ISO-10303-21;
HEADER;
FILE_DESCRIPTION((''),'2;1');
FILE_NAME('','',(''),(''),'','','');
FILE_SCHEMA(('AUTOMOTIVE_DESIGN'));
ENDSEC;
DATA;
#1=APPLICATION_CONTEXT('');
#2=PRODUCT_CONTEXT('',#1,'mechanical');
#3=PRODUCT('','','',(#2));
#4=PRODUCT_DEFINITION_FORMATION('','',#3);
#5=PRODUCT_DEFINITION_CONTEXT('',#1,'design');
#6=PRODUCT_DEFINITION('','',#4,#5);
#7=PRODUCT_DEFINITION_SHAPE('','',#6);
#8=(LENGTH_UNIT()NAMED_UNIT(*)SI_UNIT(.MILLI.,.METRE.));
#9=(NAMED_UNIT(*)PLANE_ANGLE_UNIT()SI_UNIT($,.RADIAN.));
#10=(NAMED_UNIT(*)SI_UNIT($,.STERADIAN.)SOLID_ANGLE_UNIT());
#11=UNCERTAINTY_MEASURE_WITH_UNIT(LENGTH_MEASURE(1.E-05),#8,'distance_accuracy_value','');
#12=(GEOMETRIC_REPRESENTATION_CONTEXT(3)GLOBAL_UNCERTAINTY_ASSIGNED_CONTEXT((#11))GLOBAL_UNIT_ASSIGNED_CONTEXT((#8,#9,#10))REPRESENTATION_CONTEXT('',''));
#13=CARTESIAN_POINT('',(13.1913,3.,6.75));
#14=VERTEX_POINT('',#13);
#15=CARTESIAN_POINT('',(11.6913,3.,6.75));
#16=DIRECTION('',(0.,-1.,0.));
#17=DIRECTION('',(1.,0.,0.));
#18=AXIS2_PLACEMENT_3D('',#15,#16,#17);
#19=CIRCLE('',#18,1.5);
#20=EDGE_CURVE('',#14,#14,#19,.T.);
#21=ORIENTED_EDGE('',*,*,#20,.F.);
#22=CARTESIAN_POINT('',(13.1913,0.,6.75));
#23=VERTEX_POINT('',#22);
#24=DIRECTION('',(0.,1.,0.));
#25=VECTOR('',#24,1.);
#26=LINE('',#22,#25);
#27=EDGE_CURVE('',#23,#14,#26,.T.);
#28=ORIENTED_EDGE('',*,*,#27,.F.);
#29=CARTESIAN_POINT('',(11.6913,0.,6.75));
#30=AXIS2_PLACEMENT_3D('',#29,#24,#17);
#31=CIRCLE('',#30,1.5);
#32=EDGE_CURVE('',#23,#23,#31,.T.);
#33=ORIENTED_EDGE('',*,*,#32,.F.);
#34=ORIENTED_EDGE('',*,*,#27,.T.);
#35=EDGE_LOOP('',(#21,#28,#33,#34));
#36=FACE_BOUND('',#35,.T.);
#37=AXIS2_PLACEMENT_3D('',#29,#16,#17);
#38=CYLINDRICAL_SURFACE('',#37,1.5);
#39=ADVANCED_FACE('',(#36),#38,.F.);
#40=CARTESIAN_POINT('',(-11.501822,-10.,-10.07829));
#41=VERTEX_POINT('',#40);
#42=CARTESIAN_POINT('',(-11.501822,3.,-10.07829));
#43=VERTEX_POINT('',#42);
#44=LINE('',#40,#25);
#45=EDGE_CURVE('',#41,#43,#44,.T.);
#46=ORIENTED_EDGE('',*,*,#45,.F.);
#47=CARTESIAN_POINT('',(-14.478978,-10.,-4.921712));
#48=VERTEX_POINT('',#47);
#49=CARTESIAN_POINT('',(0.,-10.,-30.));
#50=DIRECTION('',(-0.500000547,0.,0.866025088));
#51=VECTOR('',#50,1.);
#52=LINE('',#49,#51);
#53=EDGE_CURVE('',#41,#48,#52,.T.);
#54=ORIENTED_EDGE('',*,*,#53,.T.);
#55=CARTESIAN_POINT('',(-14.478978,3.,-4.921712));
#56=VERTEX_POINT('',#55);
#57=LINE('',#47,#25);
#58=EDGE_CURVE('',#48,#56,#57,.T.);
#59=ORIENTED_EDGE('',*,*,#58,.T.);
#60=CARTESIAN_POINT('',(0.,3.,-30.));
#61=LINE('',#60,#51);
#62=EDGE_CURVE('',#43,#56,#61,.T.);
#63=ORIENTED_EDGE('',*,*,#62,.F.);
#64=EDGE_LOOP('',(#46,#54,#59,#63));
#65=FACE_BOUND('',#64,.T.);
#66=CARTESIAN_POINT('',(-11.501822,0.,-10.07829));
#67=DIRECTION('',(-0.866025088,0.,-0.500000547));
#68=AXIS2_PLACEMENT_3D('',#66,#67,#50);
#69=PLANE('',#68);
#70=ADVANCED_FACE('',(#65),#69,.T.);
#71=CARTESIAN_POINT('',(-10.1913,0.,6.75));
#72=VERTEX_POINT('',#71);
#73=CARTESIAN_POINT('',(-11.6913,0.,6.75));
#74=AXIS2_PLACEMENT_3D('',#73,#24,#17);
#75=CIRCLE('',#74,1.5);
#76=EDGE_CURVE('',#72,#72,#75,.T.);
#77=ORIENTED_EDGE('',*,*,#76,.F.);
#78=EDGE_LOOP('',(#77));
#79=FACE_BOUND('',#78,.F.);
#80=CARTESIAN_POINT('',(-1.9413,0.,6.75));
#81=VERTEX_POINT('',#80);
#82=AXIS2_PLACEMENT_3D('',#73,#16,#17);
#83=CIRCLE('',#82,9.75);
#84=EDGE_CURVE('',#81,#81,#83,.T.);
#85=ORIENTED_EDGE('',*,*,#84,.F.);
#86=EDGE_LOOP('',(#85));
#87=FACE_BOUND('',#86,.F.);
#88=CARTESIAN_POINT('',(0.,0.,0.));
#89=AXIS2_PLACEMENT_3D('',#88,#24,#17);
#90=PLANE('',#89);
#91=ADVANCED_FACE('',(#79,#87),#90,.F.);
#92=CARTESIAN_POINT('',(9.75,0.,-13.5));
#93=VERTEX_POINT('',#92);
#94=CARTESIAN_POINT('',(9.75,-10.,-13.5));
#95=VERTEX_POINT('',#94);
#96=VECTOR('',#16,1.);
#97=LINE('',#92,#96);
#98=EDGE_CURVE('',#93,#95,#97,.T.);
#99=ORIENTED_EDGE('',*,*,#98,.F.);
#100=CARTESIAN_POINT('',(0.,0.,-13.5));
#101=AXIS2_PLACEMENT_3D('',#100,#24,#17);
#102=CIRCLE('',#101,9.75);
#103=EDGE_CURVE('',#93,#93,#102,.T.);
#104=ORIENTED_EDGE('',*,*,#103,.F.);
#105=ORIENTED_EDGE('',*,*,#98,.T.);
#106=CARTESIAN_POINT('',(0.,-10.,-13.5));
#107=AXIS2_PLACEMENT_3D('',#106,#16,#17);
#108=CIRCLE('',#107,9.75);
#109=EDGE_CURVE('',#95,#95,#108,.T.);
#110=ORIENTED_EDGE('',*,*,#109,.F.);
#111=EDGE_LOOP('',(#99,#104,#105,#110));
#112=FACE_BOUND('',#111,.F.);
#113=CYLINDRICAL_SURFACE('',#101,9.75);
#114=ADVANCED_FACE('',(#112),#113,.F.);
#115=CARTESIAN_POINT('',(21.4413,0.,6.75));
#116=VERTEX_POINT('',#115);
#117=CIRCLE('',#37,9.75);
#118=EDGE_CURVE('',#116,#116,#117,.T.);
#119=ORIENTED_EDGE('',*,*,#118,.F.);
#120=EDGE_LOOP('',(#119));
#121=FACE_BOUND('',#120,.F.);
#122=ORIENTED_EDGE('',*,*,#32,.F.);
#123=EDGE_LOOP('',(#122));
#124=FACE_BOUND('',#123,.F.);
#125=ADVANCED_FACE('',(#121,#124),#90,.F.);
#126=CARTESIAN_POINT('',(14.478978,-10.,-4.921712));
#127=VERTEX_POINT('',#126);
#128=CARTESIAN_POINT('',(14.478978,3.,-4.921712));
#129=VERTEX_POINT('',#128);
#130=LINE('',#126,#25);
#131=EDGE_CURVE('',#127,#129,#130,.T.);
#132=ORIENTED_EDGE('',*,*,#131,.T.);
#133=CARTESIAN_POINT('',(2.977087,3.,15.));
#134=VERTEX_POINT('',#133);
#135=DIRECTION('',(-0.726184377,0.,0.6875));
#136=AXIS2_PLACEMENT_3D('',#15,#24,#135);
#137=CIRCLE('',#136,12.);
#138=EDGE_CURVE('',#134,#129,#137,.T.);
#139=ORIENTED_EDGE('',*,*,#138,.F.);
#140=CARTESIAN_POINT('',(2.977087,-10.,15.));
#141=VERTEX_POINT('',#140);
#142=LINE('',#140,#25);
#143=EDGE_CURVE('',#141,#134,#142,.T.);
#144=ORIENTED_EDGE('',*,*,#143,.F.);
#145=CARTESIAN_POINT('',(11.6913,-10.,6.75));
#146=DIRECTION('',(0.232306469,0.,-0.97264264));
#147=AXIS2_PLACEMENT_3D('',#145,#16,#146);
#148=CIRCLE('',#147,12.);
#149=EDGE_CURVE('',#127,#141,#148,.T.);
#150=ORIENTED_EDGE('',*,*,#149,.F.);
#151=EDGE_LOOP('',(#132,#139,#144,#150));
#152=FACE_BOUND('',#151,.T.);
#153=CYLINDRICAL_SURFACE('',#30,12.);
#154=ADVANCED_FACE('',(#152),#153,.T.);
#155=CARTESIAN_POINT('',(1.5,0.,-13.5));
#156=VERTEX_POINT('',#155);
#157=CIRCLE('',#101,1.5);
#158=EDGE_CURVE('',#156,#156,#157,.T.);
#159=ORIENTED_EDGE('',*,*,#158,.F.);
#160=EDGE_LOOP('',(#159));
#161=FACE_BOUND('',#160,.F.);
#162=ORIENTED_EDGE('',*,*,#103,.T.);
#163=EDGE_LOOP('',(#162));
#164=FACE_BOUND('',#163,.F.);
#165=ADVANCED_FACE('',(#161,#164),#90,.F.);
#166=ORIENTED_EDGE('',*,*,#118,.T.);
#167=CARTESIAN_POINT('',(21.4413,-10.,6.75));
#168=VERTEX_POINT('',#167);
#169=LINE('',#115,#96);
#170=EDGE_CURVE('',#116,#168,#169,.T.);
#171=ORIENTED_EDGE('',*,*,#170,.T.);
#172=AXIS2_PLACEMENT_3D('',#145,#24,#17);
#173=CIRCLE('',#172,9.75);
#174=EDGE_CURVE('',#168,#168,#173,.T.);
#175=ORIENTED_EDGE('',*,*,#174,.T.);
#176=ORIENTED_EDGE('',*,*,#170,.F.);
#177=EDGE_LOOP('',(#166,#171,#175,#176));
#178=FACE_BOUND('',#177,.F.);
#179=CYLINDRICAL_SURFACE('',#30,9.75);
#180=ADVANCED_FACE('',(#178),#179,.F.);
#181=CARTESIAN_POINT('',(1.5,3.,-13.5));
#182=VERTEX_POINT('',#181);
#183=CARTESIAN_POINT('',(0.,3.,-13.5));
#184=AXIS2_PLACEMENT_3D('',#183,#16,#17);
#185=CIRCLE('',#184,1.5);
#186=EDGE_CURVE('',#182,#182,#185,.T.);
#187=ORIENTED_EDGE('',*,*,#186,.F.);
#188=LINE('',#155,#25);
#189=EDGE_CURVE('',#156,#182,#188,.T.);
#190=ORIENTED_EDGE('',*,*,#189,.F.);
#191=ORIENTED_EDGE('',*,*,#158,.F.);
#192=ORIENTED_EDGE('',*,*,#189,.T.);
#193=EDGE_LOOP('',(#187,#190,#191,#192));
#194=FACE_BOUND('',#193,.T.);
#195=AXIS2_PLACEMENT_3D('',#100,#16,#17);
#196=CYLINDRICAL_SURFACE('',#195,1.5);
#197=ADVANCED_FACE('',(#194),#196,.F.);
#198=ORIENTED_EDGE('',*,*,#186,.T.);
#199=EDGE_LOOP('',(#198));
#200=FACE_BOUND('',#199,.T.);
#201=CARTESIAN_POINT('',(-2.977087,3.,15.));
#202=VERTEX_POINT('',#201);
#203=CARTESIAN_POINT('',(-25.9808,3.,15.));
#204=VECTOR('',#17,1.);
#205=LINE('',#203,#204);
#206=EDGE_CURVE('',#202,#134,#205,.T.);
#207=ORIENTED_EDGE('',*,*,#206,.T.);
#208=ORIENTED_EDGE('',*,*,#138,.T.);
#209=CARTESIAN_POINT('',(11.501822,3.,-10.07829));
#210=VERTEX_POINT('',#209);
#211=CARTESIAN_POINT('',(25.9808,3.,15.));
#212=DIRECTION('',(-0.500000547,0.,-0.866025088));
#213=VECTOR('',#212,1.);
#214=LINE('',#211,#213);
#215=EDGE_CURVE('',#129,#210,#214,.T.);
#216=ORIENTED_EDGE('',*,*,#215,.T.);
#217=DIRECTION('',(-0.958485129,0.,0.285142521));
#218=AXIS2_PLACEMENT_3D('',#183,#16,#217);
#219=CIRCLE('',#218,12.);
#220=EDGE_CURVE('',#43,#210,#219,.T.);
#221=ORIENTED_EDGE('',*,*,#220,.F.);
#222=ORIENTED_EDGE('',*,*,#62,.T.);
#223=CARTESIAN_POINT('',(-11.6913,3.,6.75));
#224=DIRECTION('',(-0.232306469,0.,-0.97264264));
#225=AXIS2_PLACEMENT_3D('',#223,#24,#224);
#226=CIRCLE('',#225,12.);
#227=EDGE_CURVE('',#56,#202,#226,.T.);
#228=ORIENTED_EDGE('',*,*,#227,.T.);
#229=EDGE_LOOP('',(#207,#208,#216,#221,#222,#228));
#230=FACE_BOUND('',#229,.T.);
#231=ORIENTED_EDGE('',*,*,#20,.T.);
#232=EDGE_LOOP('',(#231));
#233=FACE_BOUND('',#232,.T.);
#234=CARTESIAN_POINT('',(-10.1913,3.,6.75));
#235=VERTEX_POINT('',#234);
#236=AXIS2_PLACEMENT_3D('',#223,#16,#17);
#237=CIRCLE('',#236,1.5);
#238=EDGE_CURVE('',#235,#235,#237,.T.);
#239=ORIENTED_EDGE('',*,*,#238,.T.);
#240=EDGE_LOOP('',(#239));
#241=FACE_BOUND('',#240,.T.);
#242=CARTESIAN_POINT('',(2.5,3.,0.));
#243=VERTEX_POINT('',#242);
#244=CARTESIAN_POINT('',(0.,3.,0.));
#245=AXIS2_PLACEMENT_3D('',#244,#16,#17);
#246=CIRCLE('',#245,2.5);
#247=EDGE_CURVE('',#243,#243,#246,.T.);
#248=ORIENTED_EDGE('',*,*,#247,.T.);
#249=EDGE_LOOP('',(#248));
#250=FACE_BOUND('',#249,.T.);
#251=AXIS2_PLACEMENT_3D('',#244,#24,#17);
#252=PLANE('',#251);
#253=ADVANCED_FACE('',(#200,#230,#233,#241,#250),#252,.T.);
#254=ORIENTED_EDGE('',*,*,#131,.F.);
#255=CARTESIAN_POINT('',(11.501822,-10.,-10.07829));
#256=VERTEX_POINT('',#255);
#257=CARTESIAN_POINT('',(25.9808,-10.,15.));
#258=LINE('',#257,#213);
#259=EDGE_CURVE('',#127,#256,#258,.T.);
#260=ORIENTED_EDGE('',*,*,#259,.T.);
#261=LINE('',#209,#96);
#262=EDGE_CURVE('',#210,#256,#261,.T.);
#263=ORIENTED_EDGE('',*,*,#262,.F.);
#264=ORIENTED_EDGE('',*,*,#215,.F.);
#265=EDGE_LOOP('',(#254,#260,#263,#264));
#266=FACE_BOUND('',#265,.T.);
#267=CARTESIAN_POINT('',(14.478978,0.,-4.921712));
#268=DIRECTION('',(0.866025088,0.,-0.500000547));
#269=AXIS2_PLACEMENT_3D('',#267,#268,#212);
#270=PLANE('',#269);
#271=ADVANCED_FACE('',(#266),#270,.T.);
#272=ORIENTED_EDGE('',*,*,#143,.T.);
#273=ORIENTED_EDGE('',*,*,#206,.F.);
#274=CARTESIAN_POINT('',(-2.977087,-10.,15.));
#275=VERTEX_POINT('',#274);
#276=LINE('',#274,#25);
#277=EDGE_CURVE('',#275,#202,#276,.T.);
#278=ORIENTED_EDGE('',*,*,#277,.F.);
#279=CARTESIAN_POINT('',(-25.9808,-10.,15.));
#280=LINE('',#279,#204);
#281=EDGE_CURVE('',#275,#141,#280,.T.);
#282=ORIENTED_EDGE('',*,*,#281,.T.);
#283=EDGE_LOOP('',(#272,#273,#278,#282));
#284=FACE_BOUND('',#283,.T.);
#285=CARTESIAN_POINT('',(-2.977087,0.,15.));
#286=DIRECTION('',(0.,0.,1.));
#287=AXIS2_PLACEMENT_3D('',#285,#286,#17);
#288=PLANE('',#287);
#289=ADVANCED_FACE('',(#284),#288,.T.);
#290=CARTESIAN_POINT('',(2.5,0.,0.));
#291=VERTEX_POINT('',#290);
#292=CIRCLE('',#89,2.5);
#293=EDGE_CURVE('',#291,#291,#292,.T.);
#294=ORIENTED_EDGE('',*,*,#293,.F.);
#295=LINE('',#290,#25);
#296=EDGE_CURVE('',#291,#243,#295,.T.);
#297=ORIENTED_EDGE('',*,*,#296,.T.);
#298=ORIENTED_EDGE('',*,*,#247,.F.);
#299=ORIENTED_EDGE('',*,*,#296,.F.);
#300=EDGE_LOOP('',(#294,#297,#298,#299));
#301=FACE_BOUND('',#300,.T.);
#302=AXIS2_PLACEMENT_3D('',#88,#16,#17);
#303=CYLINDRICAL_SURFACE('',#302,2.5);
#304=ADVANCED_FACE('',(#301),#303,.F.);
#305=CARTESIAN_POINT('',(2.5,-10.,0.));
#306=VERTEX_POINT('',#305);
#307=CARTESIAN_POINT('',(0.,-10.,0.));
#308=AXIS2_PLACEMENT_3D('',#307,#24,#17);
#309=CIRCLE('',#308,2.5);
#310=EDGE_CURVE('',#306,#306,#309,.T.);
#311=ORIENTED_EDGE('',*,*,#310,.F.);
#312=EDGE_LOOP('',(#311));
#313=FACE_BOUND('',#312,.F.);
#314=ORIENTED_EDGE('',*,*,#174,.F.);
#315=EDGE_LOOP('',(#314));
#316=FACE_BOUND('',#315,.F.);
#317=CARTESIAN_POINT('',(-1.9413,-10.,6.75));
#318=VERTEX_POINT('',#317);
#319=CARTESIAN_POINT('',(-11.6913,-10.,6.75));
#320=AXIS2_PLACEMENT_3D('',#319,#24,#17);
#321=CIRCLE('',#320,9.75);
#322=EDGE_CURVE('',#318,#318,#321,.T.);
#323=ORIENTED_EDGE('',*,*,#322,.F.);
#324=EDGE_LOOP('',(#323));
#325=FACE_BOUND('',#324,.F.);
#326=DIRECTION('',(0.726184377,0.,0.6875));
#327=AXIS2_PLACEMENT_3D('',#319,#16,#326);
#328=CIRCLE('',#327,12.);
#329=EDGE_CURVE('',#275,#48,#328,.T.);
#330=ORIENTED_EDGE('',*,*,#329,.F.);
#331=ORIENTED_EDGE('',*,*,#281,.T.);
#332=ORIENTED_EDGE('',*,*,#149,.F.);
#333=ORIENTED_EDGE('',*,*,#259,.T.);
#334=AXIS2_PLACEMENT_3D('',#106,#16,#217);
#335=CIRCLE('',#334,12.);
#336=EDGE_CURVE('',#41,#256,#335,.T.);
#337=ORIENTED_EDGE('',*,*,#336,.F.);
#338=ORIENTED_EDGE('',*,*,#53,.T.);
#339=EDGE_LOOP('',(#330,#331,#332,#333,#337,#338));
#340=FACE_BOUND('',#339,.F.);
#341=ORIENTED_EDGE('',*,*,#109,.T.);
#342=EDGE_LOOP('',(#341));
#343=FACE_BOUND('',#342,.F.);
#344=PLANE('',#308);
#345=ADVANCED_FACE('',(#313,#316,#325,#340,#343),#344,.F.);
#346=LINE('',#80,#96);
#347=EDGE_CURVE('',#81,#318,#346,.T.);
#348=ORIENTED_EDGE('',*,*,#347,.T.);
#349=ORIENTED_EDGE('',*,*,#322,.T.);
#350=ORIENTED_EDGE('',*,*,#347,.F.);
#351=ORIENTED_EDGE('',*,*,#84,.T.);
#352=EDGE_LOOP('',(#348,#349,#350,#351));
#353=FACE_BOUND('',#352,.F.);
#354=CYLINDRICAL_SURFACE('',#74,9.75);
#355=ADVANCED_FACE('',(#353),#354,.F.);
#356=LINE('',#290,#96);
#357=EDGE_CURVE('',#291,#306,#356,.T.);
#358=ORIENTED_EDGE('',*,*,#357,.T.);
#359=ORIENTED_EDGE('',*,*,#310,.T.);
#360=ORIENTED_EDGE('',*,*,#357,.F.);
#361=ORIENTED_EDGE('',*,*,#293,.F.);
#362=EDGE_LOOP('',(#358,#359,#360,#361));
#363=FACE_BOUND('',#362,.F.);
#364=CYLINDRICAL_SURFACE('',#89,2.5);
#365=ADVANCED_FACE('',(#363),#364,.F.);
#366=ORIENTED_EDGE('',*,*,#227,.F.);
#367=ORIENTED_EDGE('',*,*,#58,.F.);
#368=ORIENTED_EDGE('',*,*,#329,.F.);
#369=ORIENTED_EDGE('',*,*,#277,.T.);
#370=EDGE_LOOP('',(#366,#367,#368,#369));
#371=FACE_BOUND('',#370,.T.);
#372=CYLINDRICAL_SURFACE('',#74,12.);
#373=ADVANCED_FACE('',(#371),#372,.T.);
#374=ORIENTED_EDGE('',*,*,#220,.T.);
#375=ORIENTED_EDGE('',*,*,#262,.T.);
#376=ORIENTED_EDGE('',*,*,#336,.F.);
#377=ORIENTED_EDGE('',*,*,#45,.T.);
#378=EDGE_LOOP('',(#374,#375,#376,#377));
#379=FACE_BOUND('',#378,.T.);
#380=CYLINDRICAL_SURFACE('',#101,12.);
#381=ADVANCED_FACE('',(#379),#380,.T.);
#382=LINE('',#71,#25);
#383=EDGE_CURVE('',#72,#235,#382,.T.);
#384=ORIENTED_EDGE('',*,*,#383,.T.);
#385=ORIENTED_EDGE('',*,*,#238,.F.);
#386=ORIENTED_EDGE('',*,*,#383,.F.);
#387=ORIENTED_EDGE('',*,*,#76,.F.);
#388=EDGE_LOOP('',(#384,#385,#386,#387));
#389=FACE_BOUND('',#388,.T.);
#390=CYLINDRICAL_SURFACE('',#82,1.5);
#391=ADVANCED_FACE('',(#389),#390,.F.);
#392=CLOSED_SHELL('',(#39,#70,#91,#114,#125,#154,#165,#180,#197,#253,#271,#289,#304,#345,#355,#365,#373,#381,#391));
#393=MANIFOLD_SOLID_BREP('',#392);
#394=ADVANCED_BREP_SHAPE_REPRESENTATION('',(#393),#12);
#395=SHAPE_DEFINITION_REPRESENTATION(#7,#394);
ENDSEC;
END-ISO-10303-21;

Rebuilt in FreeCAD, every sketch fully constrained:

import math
import FreeCAD as App
import Part
import Sketcher

V = App.Vector
Q = App.Units.Quantity

doc = App.newDocument("Part")
body = doc.addObject("PartDesign::Body", "Body")

# Sketch on XZ plane
sketch1 = doc.addObject("Sketcher::SketchObject", "Sketch")
body.addObject(sketch1)
sketch1.AttachmentSupport = (doc.XZ_Plane, [""])
sketch1.MapMode = "FlatFace"
sketch1.addGeometry([
    Part.LineSegment(V(-11.5, -10.1, 0), V(-14.5, -4.9, 0)),  # 0
    Part.ArcOfCircle(Part.Circle(V(-11.7, 6.8, 0), V(0, 0, 1), 12), math.radians(43), math.radians(257)),  # 1
    Part.LineSegment(V(-3, 15, 0), V(3, 15, 0)),  # 2
    Part.ArcOfCircle(Part.Circle(V(11.7, 6.8, 0), V(0, 0, 1), 12), math.radians(-77), math.radians(137)),  # 3
    Part.LineSegment(V(14.5, -4.9, 0), V(11.5, -10.1, 0)),  # 4
    Part.ArcOfCircle(Part.Circle(V(0, -13.5, 0), V(0, 0, 1), 12), math.radians(163), math.radians(377)),  # 5
    Part.Circle(V(0, 0, 0), V(0, 0, 1), 2.5),  # 6
], False)
sketch1.addConstraint([
    Sketcher.Constraint("Coincident", 0, 2, 1, 2),
    Sketcher.Constraint("Coincident", 1, 1, 2, 1),
    Sketcher.Constraint("Coincident", 2, 2, 3, 2),
    Sketcher.Constraint("Coincident", 3, 1, 4, 1),
    Sketcher.Constraint("Coincident", 4, 2, 5, 2),
    Sketcher.Constraint("Coincident", 5, 1, 0, 1),
    Sketcher.Constraint("Horizontal", 2),
    Sketcher.Constraint("Coincident", 6, 3, -1, 1),
    Sketcher.Constraint("Equal", 1, 3),
    Sketcher.Constraint("Equal", 3, 5),
    Sketcher.Constraint("Symmetric", 1, 3, 3, 3, -2),
    Sketcher.Constraint("Symmetric", 4, 2, 5, 1, -2),
    Sketcher.Constraint("Horizontal", 0, 2, 3, 1),
    Sketcher.Constraint("Diameter", 6, 5.0),
    Sketcher.Constraint("Radius", 1, 12.0),
    Sketcher.Constraint("DistanceY", 5, 3, -1, 1, 13.5),
    Sketcher.Constraint("Angle", 0, Q("120 deg")),
    Sketcher.Constraint("DistanceY", -1, 1, 1, 1, 15.0),
    Sketcher.Constraint("DistanceY", -1, 1, 1, 3, 6.75),
    Sketcher.Constraint("DistanceX", 2, 1, 2, 2, 5.9542),
    Sketcher.Constraint("DistanceX", 0, 2, -1, 1, 14.479),
])
pad1 = doc.addObject("PartDesign::Pad", "Pad")
body.addObject(pad1)
pad1.Profile = sketch1
pad1.Length = 3
pad1.Reversed = True

# Sketch on XZ plane
sketch2 = doc.addObject("Sketcher::SketchObject", "Sketch001")
body.addObject(sketch2)
sketch2.AttachmentSupport = (doc.XZ_Plane, [""])
sketch2.MapMode = "FlatFace"
sketch2.addGeometry([
    Part.LineSegment(V(-11.5, -10.1, 0), V(-14.5, -4.9, 0)),  # 0
    Part.ArcOfCircle(Part.Circle(V(-11.7, 6.8, 0), V(0, 0, 1), 12), math.radians(43), math.radians(257)),  # 1
    Part.LineSegment(V(-3, 15, 0), V(3, 15, 0)),  # 2
    Part.ArcOfCircle(Part.Circle(V(11.7, 6.8, 0), V(0, 0, 1), 12), math.radians(-77), math.radians(137)),  # 3
    Part.LineSegment(V(14.5, -4.9, 0), V(11.5, -10.1, 0)),  # 4
    Part.ArcOfCircle(Part.Circle(V(0, -13.5, 0), V(0, 0, 1), 12), math.radians(163), math.radians(377)),  # 5
    Part.Circle(V(0, -13.5, 0), V(0, 0, 1), 9.8),  # 6
    Part.Circle(V(0, 0, 0), V(0, 0, 1), 2.5),  # 7
    Part.Circle(V(11.7, 6.8, 0), V(0, 0, 1), 9.8),  # 8
    Part.Circle(V(-11.7, 6.8, 0), V(0, 0, 1), 9.8),  # 9
], False)
sketch2.addConstraint([
    Sketcher.Constraint("Coincident", 0, 2, 1, 2),
    Sketcher.Constraint("Coincident", 1, 1, 2, 1),
    Sketcher.Constraint("Coincident", 2, 2, 3, 2),
    Sketcher.Constraint("Coincident", 3, 1, 4, 1),
    Sketcher.Constraint("Coincident", 4, 2, 5, 2),
    Sketcher.Constraint("Coincident", 5, 1, 0, 1),
    Sketcher.Constraint("Horizontal", 2),
    Sketcher.Constraint("Coincident", 7, 3, -1, 1),
    Sketcher.Constraint("Coincident", 6, 3, 5, 3),
    Sketcher.Constraint("Coincident", 8, 3, 3, 3),
    Sketcher.Constraint("Coincident", 9, 3, 1, 3),
    Sketcher.Constraint("Equal", 1, 3),
    Sketcher.Constraint("Equal", 3, 5),
    Sketcher.Constraint("Equal", 6, 8),
    Sketcher.Constraint("Equal", 8, 9),
    Sketcher.Constraint("Symmetric", 1, 3, 3, 3, -2),
    Sketcher.Constraint("Symmetric", 4, 2, 5, 1, -2),
    Sketcher.Constraint("Horizontal", 0, 2, 3, 1),
    Sketcher.Constraint("Diameter", 7, 5.0),
    Sketcher.Constraint("Radius", 1, 12.0),
    Sketcher.Constraint("Diameter", 6, 19.5),
    Sketcher.Constraint("DistanceY", 5, 3, -1, 1, 13.5),
    Sketcher.Constraint("Angle", 0, Q("120 deg")),
    Sketcher.Constraint("DistanceY", -1, 1, 1, 1, 15.0),
    Sketcher.Constraint("DistanceY", -1, 1, 1, 3, 6.75),
    Sketcher.Constraint("DistanceX", 2, 1, 2, 2, 5.9542),
    Sketcher.Constraint("DistanceX", 0, 2, -1, 1, 14.479),
])
pad2 = doc.addObject("PartDesign::Pad", "Pad001")
body.addObject(pad2)
pad2.Profile = sketch2
pad2.Length = 10

# Sketch on XZ plane
sketch3 = doc.addObject("Sketcher::SketchObject", "Sketch002")
body.addObject(sketch3)
sketch3.AttachmentSupport = (doc.XZ_Plane, [""])
sketch3.MapMode = "FlatFace"
sketch3.addGeometry([
    Part.Circle(V(-11.7, 6.8, 0), V(0, 0, 1), 1.5),
    Part.Circle(V(11.7, 6.8, 0), V(0, 0, 1), 1.5),
    Part.Circle(V(0, -13.5, 0), V(0, 0, 1), 1.5),
], False)
sketch3.addConstraint([
    Sketcher.Constraint("Equal", 0, 1),
    Sketcher.Constraint("Equal", 1, 2),
    Sketcher.Constraint("Symmetric", 0, 3, 1, 3, -2),
    Sketcher.Constraint("PointOnObject", 2, 3, -2),
    Sketcher.Constraint("Diameter", 0, 3.0),
    Sketcher.Constraint("DistanceY", 2, 3, -1, 1, 13.5),
    Sketcher.Constraint("DistanceY", -1, 1, 0, 3, 6.75),
    Sketcher.Constraint("DistanceX", 0, 3, -1, 1, 11.6913),
])
pocket1 = doc.addObject("PartDesign::Pocket", "Pocket")
body.addObject(pocket1)
pocket1.Profile = sketch3
pocket1.Type = "ThroughAll"

doc.recompute()
